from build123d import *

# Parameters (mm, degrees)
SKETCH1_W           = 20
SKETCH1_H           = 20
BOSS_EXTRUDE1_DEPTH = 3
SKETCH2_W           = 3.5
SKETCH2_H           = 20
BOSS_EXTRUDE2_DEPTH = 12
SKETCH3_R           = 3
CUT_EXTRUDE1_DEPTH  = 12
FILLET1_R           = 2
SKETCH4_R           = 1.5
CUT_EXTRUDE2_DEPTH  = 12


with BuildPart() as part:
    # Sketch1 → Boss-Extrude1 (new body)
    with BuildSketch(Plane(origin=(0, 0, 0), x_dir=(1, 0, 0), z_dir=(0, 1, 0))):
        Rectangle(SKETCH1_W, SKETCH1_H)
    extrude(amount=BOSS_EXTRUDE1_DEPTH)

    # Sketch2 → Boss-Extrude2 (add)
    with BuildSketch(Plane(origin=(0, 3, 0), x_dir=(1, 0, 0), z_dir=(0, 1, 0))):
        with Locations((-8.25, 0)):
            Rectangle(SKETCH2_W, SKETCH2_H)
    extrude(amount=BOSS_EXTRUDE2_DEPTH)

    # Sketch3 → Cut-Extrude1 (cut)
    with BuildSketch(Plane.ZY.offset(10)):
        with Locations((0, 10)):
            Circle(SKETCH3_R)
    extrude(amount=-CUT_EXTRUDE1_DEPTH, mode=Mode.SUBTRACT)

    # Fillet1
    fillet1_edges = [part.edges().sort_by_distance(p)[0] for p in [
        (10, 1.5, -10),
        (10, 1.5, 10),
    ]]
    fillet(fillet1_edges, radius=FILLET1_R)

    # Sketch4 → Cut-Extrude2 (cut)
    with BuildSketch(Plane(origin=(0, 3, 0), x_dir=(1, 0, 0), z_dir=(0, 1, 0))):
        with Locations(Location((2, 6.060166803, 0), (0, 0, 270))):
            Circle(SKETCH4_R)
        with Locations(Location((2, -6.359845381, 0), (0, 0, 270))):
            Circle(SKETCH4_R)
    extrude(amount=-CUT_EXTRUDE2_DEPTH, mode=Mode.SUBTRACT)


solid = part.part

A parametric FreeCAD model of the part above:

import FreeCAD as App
import Part
import Sketcher

V = App.Vector


def edges_at(feature, points):
    """Names of the edges that pass closest to the given points."""
    edges = feature.Shape.Edges
    near = lambda p: min(range(len(edges)), key=lambda i: edges[i].distToShape(Part.Vertex(*p))[0])
    return sorted({f"Edge{near(p) + 1}" for p in points})


def add_polygon(sketch, points):
    """Adds a closed chain of lines whose ends are joined by coincident constraints."""
    first, n = sketch.GeometryCount, len(points)
    for a, b in zip(points, points[1:] + points[:1]):
        sketch.addGeometry(Part.LineSegment(App.Vector(*a, 0), App.Vector(*b, 0)), False)
    for i in range(n):
        sketch.addConstraint(Sketcher.Constraint("Coincident", first + i, 2, first + (i + 1) % n, 1))

doc = App.newDocument("Part")
body = doc.addObject("PartDesign::Body", "Body")

# Sketch on XZ plane
sketch1 = doc.addObject("Sketcher::SketchObject", "Sketch")
body.addObject(sketch1)
sketch1.AttachmentSupport = (doc.XZ_Plane, [""])
sketch1.MapMode = "FlatFace"
add_polygon(sketch1, [(-10, -10), (-10, 10), (10, 10), (10, -10)])  # lines 0-3
sketch1.addConstraint([
    Sketcher.Constraint("Vertical", 0),
    Sketcher.Constraint("Horizontal", 1),
    Sketcher.Constraint("Vertical", 2),
    Sketcher.Constraint("Horizontal", 3),
    Sketcher.Constraint("Symmetric", 0, 2, 2, 2, -1, 1),
    Sketcher.Constraint("Equal", 3, 0),
    Sketcher.Constraint("DistanceX", 1, 1, 1, 2, 20.0),
])
pad1 = doc.addObject("PartDesign::Pad", "Pad")
body.addObject(pad1)
pad1.Profile = sketch1
pad1.Length = 3
pad1.Reversed = True

# Sketch on XZ plane
sketch2 = doc.addObject("Sketcher::SketchObject", "Sketch001")
body.addObject(sketch2)
sketch2.AttachmentSupport = (doc.XZ_Plane, [""])
sketch2.MapMode = "FlatFace"
sketch2.AttachmentOffset = App.Placement(V(0, 0, -3), App.Rotation())
add_polygon(sketch2, [(-10, -10), (-10, 10), (-6.5, 10), (-6.5, -10)])  # lines 0-3
sketch2.addConstraint([
    Sketcher.Constraint("Vertical", 0),
    Sketcher.Constraint("Horizontal", 1),
    Sketcher.Constraint("Vertical", 2),
    Sketcher.Constraint("Horizontal", 3),
    Sketcher.Constraint("DistanceY", 0, 1, 0, 2, 20.0),
    Sketcher.Constraint("DistanceX", 1, 1, 1, 2, 3.5),
    Sketcher.Constraint("DistanceX", 0, 2, -1, 1, 10.0),
    Sketcher.Constraint("DistanceY", -1, 1, 0, 2, 10.0),
])
pad2 = doc.addObject("PartDesign::Pad", "Pad001")
body.addObject(pad2)
pad2.Profile = sketch2
pad2.Length = 12
pad2.Reversed = True

# Sketch on YZ plane
sketch3 = doc.addObject("Sketcher::SketchObject", "Sketch002")
body.addObject(sketch3)
sketch3.AttachmentSupport = (doc.YZ_Plane, [""])
sketch3.MapMode = "FlatFace"
sketch3.AttachmentOffset = App.Placement(V(0, 0, -10), App.Rotation())
sketch3.addGeometry(Part.Circle(V(10, 0, 0), V(0, 0, 1), 3), False)
sketch3.addConstraint([
    Sketcher.Constraint("PointOnObject", 0, 3, -1),
    Sketcher.Constraint("Diameter", 0, 6.0),
    Sketcher.Constraint("DistanceX", -1, 1, 0, 3, 10.0),
])
pocket1 = doc.addObject("PartDesign::Pocket", "Pocket")
body.addObject(pocket1)
pocket1.Profile = sketch3
pocket1.Length = 12
pocket1.Reversed = True
doc.recompute()

fillet = doc.addObject("PartDesign::Fillet", "Fillet")
body.addObject(fillet)
fillet.Base = (pocket1, edges_at(pocket1, [(10, 1.5, -10), (10, 1.5, 10)]))
fillet.Radius = 2

# Sketch on XZ plane
sketch4 = doc.addObject("Sketcher::SketchObject", "Sketch003")
body.addObject(sketch4)
sketch4.AttachmentSupport = (doc.XZ_Plane, [""])
sketch4.MapMode = "FlatFace"
sketch4.AttachmentOffset = App.Placement(V(0, 0, -3), App.Rotation())
sketch4.addGeometry([
    Part.Circle(V(2, -6.1, 0), V(0, 0, 1), 1.5),
    Part.Circle(V(2, 6.4, 0), V(0, 0, 1), 1.5),
], False)
sketch4.addConstraint([
    Sketcher.Constraint("Equal", 0, 1),
    Sketcher.Constraint("Vertical", 0, 3, 1, 3),
    Sketcher.Constraint("Diameter", 0, 3.0),
    Sketcher.Constraint("DistanceX", -1, 1, 0, 3, 2.0),
    Sketcher.Constraint("DistanceY", 0, 3, -1, 1, 6.060167),
    Sketcher.Constraint("DistanceY", -1, 1, 1, 3, 6.359845),
])
pocket2 = doc.addObject("PartDesign::Pocket", "Pocket001")
body.addObject(pocket2)
pocket2.Profile = sketch4
pocket2.Length = 12
pocket2.Reversed = True

doc.recompute()
